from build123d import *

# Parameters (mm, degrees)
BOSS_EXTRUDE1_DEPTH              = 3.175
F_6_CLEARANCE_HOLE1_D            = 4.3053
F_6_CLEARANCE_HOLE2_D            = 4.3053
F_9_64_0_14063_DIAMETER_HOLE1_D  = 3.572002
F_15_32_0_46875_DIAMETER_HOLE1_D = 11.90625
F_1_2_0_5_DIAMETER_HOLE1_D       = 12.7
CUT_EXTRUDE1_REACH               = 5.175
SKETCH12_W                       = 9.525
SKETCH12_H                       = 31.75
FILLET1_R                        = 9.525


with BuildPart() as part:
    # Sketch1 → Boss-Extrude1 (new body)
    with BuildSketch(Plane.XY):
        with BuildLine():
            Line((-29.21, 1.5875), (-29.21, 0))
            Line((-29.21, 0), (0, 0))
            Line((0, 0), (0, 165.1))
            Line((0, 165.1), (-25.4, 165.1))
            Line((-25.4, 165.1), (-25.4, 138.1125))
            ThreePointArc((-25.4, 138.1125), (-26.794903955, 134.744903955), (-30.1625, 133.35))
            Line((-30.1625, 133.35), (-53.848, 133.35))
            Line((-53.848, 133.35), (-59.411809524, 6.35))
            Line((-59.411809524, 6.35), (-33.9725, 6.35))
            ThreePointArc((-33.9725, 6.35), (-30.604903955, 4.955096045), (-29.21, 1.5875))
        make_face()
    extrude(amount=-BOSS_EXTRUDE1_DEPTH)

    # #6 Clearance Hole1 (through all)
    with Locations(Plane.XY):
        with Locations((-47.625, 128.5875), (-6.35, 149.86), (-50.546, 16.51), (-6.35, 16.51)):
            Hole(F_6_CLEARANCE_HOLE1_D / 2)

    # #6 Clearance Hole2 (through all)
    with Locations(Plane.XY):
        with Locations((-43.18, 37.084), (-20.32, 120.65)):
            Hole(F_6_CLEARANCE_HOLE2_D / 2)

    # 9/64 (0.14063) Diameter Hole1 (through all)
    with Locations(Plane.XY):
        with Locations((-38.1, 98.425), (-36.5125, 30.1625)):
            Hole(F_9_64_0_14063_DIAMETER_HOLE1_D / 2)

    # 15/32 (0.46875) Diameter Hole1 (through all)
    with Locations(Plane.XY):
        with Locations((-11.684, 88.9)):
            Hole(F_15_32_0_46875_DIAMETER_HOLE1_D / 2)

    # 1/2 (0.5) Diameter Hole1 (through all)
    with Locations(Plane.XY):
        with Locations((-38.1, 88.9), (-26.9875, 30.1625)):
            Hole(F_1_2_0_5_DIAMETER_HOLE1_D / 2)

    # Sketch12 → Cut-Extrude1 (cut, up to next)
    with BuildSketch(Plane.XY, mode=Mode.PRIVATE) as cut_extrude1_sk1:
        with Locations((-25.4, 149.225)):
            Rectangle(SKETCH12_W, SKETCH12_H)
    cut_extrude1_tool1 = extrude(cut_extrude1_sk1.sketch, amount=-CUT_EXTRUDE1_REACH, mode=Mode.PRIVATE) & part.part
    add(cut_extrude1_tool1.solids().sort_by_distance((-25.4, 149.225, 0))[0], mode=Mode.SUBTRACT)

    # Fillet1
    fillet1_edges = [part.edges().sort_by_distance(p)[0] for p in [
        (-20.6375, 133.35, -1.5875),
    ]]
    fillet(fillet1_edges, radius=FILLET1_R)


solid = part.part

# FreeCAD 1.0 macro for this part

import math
import FreeCAD as App
import Part
import Sketcher
Q = App.Units.Quantity


def edges_at(feature, points):
    """Names of the edges that pass closest to the given points."""
    edges = feature.Shape.Edges
    near = lambda p: min(range(len(edges)), key=lambda i: edges[i].distToShape(Part.Vertex(*p))[0])
    return sorted({f"Edge{near(p) + 1}" for p in points})


def add_polygon(sketch, points):
    """Adds a closed chain of lines whose ends are joined by coincident constraints."""
    first, n = sketch.GeometryCount, len(points)
    for a, b in zip(points, points[1:] + points[:1]):
        sketch.addGeometry(Part.LineSegment(App.Vector(*a, 0), App.Vector(*b, 0)), False)
    for i in range(n):
        sketch.addConstraint(Sketcher.Constraint("Coincident", first + i, 2, first + (i + 1) % n, 1))

doc = App.newDocument("Part")
body = doc.addObject("PartDesign::Body", "Body")

# Sketch on XY plane
sketch1 = doc.addObject("Sketcher::SketchObject", "Sketch")
body.addObject(sketch1)
sketch1.AttachmentSupport = (doc.XY_Plane, [""])
sketch1.MapMode = "FlatFace"
sketch1.addGeometry([
    Part.LineSegment(App.Vector(-29.2, 1.6, 0), App.Vector(-29.2, 0, 0)),  # 0
    Part.LineSegment(App.Vector(-29.2, 0, 0), App.Vector(0, 0, 0)),  # 1
    Part.LineSegment(App.Vector(0, 0, 0), App.Vector(0, 165.1, 0)),  # 2
    Part.LineSegment(App.Vector(0, 165.1, 0), App.Vector(-25.4, 165.1, 0)),  # 3
    Part.LineSegment(App.Vector(-25.4, 165.1, 0), App.Vector(-25.4, 138.1, 0)),  # 4
    Part.ArcOfCircle(Part.Circle(App.Vector(-30.2, 138.1, 0), App.Vector(0, 0, 1), 4.8), math.radians(-90), math.radians(0)),  # 5
    Part.LineSegment(App.Vector(-30.2, 133.3, 0), App.Vector(-53.8, 133.3, 0)),  # 6
    Part.LineSegment(App.Vector(-53.8, 133.3, 0), App.Vector(-59.4, 6.3, 0)),  # 7
    Part.LineSegment(App.Vector(-59.4, 6.3, 0), App.Vector(-34, 6.3, 0)),  # 8
    Part.ArcOfCircle(Part.Circle(App.Vector(-34, 1.6, 0), App.Vector(0, 0, 1), 4.8), math.radians(0), math.radians(90)),  # 9
], False)
sketch1.addConstraint([
    Sketcher.Constraint("Coincident", 0, 2, 1, 1),
    Sketcher.Constraint("Coincident", 1, 2, 2, 1),
    Sketcher.Constraint("Coincident", 2, 2, 3, 1),
    Sketcher.Constraint("Coincident", 3, 2, 4, 1),
    Sketcher.Constraint("Tangent", 4, 2, 5, 2),
    Sketcher.Constraint("Tangent", 5, 1, 6, 1),
    Sketcher.Constraint("Coincident", 6, 2, 7, 1),
    Sketcher.Constraint("Coincident", 7, 2, 8, 1),
    Sketcher.Constraint("Tangent", 8, 2, 9, 2),
    Sketcher.Constraint("Tangent", 9, 1, 0, 1),
    Sketcher.Constraint("Vertical", 0),
    Sketcher.Constraint("Horizontal", 1),
    Sketcher.Constraint("Vertical", 2),
    Sketcher.Constraint("Horizontal", 3),
    Sketcher.Constraint("Vertical", 4),
    Sketcher.Constraint("Horizontal", 6),
    Sketcher.Constraint("Horizontal", 8),
    Sketcher.Constraint("Coincident", 1, 2, -1, 1),
    Sketcher.Constraint("Equal", 5, 9),
    Sketcher.Constraint("DistanceX", 3, 2, 3, 1, Q("1 in")),
    Sketcher.Constraint("DistanceY", 2, 1, 2, 2, Q("6.5 in")),
    Sketcher.Constraint("Radius", 5, Q("0.1875 in")),
    Sketcher.Constraint("DistanceY", 7, 2, 6, 2, Q("5 in")),
    Sketcher.Constraint("DistanceX", 1, 1, 1, 2, Q("1.15 in")),
    Sketcher.Constraint("DistanceY", 0, 2, 0, 1, Q("0.0625 in")),
    Sketcher.Constraint("DistanceX", 6, 2, -1, 1, Q("2.12 in")),
    Sketcher.Constraint("DistanceX", 8, 1, 8, 2, Q("25.43931 mm")),
])
pad1 = doc.addObject("PartDesign::Pad", "Pad")
body.addObject(pad1)
pad1.Profile = sketch1
pad1.Length = Q("0.125 in")
pad1.Reversed = True

# Sketch on XY plane
sketch2 = doc.addObject("Sketcher::SketchObject", "Sketch001")
body.addObject(sketch2)
sketch2.AttachmentSupport = (doc.XY_Plane, [""])
sketch2.MapMode = "FlatFace"
sketch2.addGeometry([
    Part.Circle(App.Vector(-47.6, 128.6, 0), App.Vector(0, 0, 1), 2.2),
    Part.Circle(App.Vector(-6.3, 149.9, 0), App.Vector(0, 0, 1), 2.2),
    Part.Circle(App.Vector(-50.5, 16.5, 0), App.Vector(0, 0, 1), 2.2),
    Part.Circle(App.Vector(-6.3, 16.5, 0), App.Vector(0, 0, 1), 2.2),
], False)
sketch2.addConstraint([
    Sketcher.Constraint("Equal", 0, 1),
    Sketcher.Constraint("Equal", 1, 2),
    Sketcher.Constraint("Equal", 2, 3),
    Sketcher.Constraint("Horizontal", 2, 3, 3, 3),
    Sketcher.Constraint("Vertical", 1, 3, 3, 3),
    Sketcher.Constraint("Diameter", 0, Q("0.1695 in")),
    Sketcher.Constraint("DistanceY", -1, 1, 1, 3, Q("5.9 in")),
    Sketcher.Constraint("DistanceX", 1, 3, -1, 1, Q("0.25 in")),
    Sketcher.Constraint("DistanceX", 2, 3, -1, 1, Q("1.99 in")),
    Sketcher.Constraint("DistanceY", -1, 1, 2, 3, Q("0.65 in")),
    Sketcher.Constraint("DistanceX", 0, 3, -1, 1, Q("1.875 in")),
    Sketcher.Constraint("DistanceY", -1, 1, 0, 3, Q("5.0625 in")),
])
doc.recompute()
hole = doc.addObject("PartDesign::Hole", "Hole")
body.addObject(hole)
hole.Profile = sketch2
hole.ThreadType = "None"
hole.Diameter = Q("0.1695 in")
hole.DepthType = "ThroughAll"

# Sketch on XY plane
sketch3 = doc.addObject("Sketcher::SketchObject", "Sketch002")
body.addObject(sketch3)
sketch3.AttachmentSupport = (doc.XY_Plane, [""])
sketch3.MapMode = "FlatFace"
sketch3.addGeometry([
    Part.Circle(App.Vector(-43.2, 37.1, 0), App.Vector(0, 0, 1), 2.2),
    Part.Circle(App.Vector(-20.3, 120.7, 0), App.Vector(0, 0, 1), 2.2),
], False)
sketch3.addConstraint([
    Sketcher.Constraint("Equal", 0, 1),
    Sketcher.Constraint("Diameter", 0, Q("0.1695 in")),
    Sketcher.Constraint("DistanceX", 0, 3, -1, 1, Q("1.7 in")),
    Sketcher.Constraint("DistanceX", 1, 3, -1, 1, Q("0.8 in")),
    Sketcher.Constraint("DistanceY", -1, 1, 0, 3, Q("1.46 in")),
    Sketcher.Constraint("DistanceY", -1, 1, 1, 3, Q("4.75 in")),
])
doc.recompute()
hole2 = doc.addObject("PartDesign::Hole", "Hole001")
body.addObject(hole2)
hole2.Profile = sketch3
hole2.ThreadType = "None"
hole2.Diameter = Q("0.1695 in")
hole2.DepthType = "ThroughAll"

# Sketch on XY plane
sketch4 = doc.addObject("Sketcher::SketchObject", "Sketch003")
body.addObject(sketch4)
sketch4.AttachmentSupport = (doc.XY_Plane, [""])
sketch4.MapMode = "FlatFace"
sketch4.addGeometry([
    Part.Circle(App.Vector(-38.1, 98.4, 0), App.Vector(0, 0, 1), 1.8),
    Part.Circle(App.Vector(-36.5, 30.2, 0), App.Vector(0, 0, 1), 1.8),
], False)
sketch4.addConstraint([
    Sketcher.Constraint("Equal", 0, 1),
    Sketcher.Constraint("DistanceX", 0, 3, -1, 1, Q("1.5 in")),
    Sketcher.Constraint("Diameter", 0, Q("3.572002 mm")),
    Sketcher.Constraint("DistanceY", -1, 1, 0, 3, Q("3.875 in")),
    Sketcher.Constraint("DistanceX", 1, 3, -1, 1, Q("1.4375 in")),
    Sketcher.Constraint("DistanceY", -1, 1, 1, 3, Q("1.1875 in")),
])
doc.recompute()
hole3 = doc.addObject("PartDesign::Hole", "Hole002")
body.addObject(hole3)
hole3.Profile = sketch4
hole3.ThreadType = "None"
hole3.Diameter = 3.572002
hole3.DepthType = "ThroughAll"

# Sketch on XY plane
sketch5 = doc.addObject("Sketcher::SketchObject", "Sketch004")
body.addObject(sketch5)
sketch5.AttachmentSupport = (doc.XY_Plane, [""])
sketch5.MapMode = "FlatFace"
sketch5.addGeometry(Part.Circle(App.Vector(-12, 89, 0), App.Vector(0, 0, 1), 6), False)
sketch5.addConstraint([
    Sketcher.Constraint("Diameter", 0, Q("0.46875 in")),
    Sketcher.Constraint("DistanceY", -1, 1, 0, 3, Q("3.5 in")),
    Sketcher.Constraint("DistanceX", 0, 3, -1, 1, Q("0.46 in")),
])
doc.recompute()
hole4 = doc.addObject("PartDesign::Hole", "Hole003")
body.addObject(hole4)
hole4.Profile = sketch5
hole4.ThreadType = "None"
hole4.Diameter = Q("0.46875 in")
hole4.DepthType = "ThroughAll"

# Sketch on XY plane
sketch6 = doc.addObject("Sketcher::SketchObject", "Sketch005")
body.addObject(sketch6)
sketch6.AttachmentSupport = (doc.XY_Plane, [""])
sketch6.MapMode = "FlatFace"
sketch6.addGeometry([
    Part.Circle(App.Vector(-38, 89, 0), App.Vector(0, 0, 1), 6),
    Part.Circle(App.Vector(-27, 30, 0), App.Vector(0, 0, 1), 6),
], False)
sketch6.addConstraint([
    Sketcher.Constraint("Equal", 0, 1),
    Sketcher.Constraint("Diameter", 0, Q("0.5 in")),
    Sketcher.Constraint("DistanceX", 0, 3, -1, 1, Q("1.5 in")),
    Sketcher.Constraint("DistanceY", -1, 1, 0, 3, Q("3.5 in")),
    Sketcher.Constraint("DistanceX", 1, 3, -1, 1, Q("1.0625 in")),
    Sketcher.Constraint("DistanceY", -1, 1, 1, 3, Q("1.1875 in")),
])
doc.recompute()
hole5 = doc.addObject("PartDesign::Hole", "Hole004")
body.addObject(hole5)
hole5.Profile = sketch6
hole5.ThreadType = "None"
hole5.Diameter = Q("0.5 in")
hole5.DepthType = "ThroughAll"

# Sketch on XY plane
sketch7 = doc.addObject("Sketcher::SketchObject", "Sketch006")
body.addObject(sketch7)
sketch7.AttachmentSupport = (doc.XY_Plane, [""])
sketch7.MapMode = "FlatFace"
add_polygon(sketch7, [(-30, 165), (-30, 133), (-21, 133), (-21, 165)])  # lines 0-3
sketch7.addConstraint([
    Sketcher.Constraint("Vertical", 0),
    Sketcher.Constraint("Horizontal", 1),
    Sketcher.Constraint("Vertical", 2),
    Sketcher.Constraint("Horizontal", 3),
    Sketcher.Constraint("DistanceY", 0, 2, 0, 1, Q("1.25 in")),
    Sketcher.Constraint("DistanceY", -1, 1, 2, 2, Q("6.5 in")),
    Sketcher.Constraint("DistanceX", 1, 1, 1, 2, Q("0.375 in")),
    Sketcher.Constraint("DistanceX", 0, 2, -1, 1, Q("1.1875 in")),
])
pocket1 = doc.addObject("PartDesign::Pocket", "Pocket")
body.addObject(pocket1)
pocket1.Profile = sketch7
pocket1.Type = "UpToFirst"
doc.recompute()

fillet = doc.addObject("PartDesign::Fillet", "Fillet")
body.addObject(fillet)
fillet.Base = (pocket1, edges_at(pocket1, [(-20.637, 133.35, -1.587)]))
fillet.Radius = Q("0.375 in")

doc.recompute()
